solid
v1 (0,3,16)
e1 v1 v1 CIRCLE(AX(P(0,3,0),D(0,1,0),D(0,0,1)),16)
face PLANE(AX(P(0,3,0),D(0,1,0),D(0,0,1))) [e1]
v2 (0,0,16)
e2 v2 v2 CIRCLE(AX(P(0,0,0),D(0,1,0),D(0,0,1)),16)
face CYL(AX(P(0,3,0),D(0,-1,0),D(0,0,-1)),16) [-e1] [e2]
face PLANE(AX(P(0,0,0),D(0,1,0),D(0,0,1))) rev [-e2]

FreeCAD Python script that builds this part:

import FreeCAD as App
import Part
import Sketcher
Q = App.Units.Quantity

doc = App.newDocument("Part")
body = doc.addObject("PartDesign::Body", "Body")

# Sketch on XZ plane
sketch1 = body.newObject("Sketcher::SketchObject", "Sketch")
sketch1.AttachmentSupport = (doc.getObject("XZ_Plane"), [""])
sketch1.MapMode = "FlatFace"
sketch1.addGeometry(Part.Circle(App.Vector(0, 0, 0), App.Vector(0, 0, 1), 16), False)
sketch1.addConstraint(Sketcher.Constraint("Coincident", 0, 3, -1, 1))
sketch1.addConstraint(Sketcher.Constraint("Diameter", 0, Q("32 mm")))
pad1 = body.newObject("PartDesign::Pad", "Pad")
pad1.Profile = sketch1
pad1.Length = 3
pad1.Reversed = True

doc.recompute()
